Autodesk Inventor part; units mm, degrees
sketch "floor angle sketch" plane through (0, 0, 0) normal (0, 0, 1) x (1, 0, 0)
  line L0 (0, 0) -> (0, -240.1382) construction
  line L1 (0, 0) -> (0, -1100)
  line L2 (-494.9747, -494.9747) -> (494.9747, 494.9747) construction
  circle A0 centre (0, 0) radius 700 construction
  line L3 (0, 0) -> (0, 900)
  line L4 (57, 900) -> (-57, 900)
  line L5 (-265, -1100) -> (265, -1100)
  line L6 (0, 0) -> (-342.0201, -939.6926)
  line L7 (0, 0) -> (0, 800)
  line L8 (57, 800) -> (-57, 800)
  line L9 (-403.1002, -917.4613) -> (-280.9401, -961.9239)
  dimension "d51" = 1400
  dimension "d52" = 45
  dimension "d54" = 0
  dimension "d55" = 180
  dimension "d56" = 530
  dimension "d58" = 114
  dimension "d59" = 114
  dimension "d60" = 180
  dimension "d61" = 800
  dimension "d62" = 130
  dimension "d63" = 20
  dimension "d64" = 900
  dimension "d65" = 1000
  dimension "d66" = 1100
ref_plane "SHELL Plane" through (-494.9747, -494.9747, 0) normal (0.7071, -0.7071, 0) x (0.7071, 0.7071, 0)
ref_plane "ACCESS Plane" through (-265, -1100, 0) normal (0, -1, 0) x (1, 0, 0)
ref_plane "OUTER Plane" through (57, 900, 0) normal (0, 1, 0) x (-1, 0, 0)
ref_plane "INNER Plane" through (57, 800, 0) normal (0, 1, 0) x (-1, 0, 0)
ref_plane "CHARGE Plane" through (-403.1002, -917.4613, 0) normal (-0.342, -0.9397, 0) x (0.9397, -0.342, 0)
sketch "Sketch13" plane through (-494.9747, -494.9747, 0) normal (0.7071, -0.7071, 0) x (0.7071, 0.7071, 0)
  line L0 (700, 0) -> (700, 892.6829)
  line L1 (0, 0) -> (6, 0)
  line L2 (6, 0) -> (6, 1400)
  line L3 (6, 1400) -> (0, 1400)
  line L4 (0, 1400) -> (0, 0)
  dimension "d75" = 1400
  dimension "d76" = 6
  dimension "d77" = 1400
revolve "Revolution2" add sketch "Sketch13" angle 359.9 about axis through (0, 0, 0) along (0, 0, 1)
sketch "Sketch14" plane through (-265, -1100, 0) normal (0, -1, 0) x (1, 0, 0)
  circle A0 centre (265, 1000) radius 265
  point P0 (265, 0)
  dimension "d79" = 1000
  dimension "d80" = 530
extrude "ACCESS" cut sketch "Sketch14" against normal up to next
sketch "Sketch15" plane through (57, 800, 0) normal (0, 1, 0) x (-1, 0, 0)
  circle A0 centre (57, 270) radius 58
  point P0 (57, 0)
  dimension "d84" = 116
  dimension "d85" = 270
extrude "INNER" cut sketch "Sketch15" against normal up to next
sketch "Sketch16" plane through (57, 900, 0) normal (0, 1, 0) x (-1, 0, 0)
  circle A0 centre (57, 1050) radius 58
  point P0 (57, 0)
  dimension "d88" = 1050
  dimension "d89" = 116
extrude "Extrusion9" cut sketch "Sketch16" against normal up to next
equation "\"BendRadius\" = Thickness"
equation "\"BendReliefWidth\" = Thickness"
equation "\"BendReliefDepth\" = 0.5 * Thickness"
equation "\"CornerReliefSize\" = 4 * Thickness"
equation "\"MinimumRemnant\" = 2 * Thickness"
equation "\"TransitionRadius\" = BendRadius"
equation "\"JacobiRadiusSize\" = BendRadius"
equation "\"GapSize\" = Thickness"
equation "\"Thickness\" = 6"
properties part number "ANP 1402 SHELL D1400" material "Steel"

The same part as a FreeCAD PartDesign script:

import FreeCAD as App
import Part
import Sketcher
from FreeCAD import Vector
Q = App.Units.Quantity


def add_polygon(sketch, points):
    """Adds a closed chain of lines whose ends are joined by coincident constraints."""
    first, n = sketch.GeometryCount, len(points)
    for a, b in zip(points, points[1:] + points[:1]):
        sketch.addGeometry(Part.LineSegment(App.Vector(*a, 0), App.Vector(*b, 0)), False)
    for i in range(n):
        sketch.addConstraint(Sketcher.Constraint("Coincident", first + i, 2, first + (i + 1) % n, 1))

doc = App.newDocument("Part")
body = doc.addObject("PartDesign::Body", "Body")

sketch1 = body.newObject("Sketcher::SketchObject", "Sketch")
sketch1.Placement = App.Placement(Vector(-494.9747, -494.9747, 0), App.Rotation(Vector(0.707106781, 0.707106781, 0), Vector(0, 0, 0.999999999), Vector(0.707106781, -0.707106781, 0), "ZXY"))
add_polygon(sketch1, [(0, 1400), (0, 0), (6, 0), (6, 1400)])
sketch1.addGeometry(Part.LineSegment(Vector(700, 0, 0), Vector(700, 1400, 0)), True)
sketch1.addConstraint(Sketcher.Constraint("Vertical", 0))
sketch1.addConstraint(Sketcher.Constraint("Horizontal", 1))
sketch1.addConstraint(Sketcher.Constraint("Vertical", 2))
sketch1.addConstraint(Sketcher.Constraint("Horizontal", 3))
sketch1.addConstraint(Sketcher.Constraint("Vertical", 4))
sketch1.addConstraint(Sketcher.Constraint("Coincident", 0, 2, -1, 1))
sketch1.addConstraint(Sketcher.Constraint("PointOnObject", 4, 1, -1))
sketch1.addConstraint(Sketcher.Constraint("Horizontal", 3, 2, 4, 2))
sketch1.addConstraint(Sketcher.Constraint("DistanceX", 1, 1, 1, 2, Q("6 mm")))
sketch1.addConstraint(Sketcher.Constraint("DistanceY", 0, 2, 0, 1, Q("1400 mm")))
sketch1.addConstraint(Sketcher.Constraint("DistanceX", -1, 1, 4, 1, Q("700 mm")))
revolution = body.newObject("PartDesign::Revolution", "Revolution")
revolution.Profile = sketch1
revolution.ReferenceAxis = (sketch1, ["Axis0"])
revolution.Angle = 359.9

sketch2 = body.newObject("Sketcher::SketchObject", "Sketch001")
sketch2.AttachmentSupport = (doc.getObject("XZ_Plane"), [""])
sketch2.MapMode = "FlatFace"
sketch2.AttachmentOffset = App.Placement(Vector(0, 0, 1100), App.Rotation())
sketch2.addGeometry(Part.Circle(Vector(0, 1000, 0), Vector(0, 0, 1), 265), False)
sketch2.addConstraint(Sketcher.Constraint("PointOnObject", 0, 3, -2))
sketch2.addConstraint(Sketcher.Constraint("Diameter", 0, Q("530 mm")))
sketch2.addConstraint(Sketcher.Constraint("DistanceY", -1, 1, 0, 3, Q("1000 mm")))
pocket1 = body.newObject("PartDesign::Pocket", "Pocket")
pocket1.Profile = sketch2
pocket1.Length = 458.5868

sketch3 = body.newObject("Sketcher::SketchObject", "Sketch002")
sketch3.AttachmentSupport = (doc.getObject("XZ_Plane"), [""])
sketch3.MapMode = "FlatFace"
sketch3.AttachmentOffset = App.Placement(Vector(0, 0, -800), App.Rotation())
sketch3.addGeometry(Part.Circle(Vector(0, 270, 0), Vector(0, 0, 1), 58), False)
sketch3.addConstraint(Sketcher.Constraint("PointOnObject", 0, 3, -2))
sketch3.addConstraint(Sketcher.Constraint("Diameter", 0, Q("116 mm")))
sketch3.addConstraint(Sketcher.Constraint("DistanceY", -1, 1, 0, 3, Q("270 mm")))
pocket2 = body.newObject("PartDesign::Pocket", "Pocket001")
pocket2.Profile = sketch3
pocket2.Length = 108.4279
pocket2.Reversed = True

sketch4 = body.newObject("Sketcher::SketchObject", "Sketch003")
sketch4.AttachmentSupport = (doc.getObject("XZ_Plane"), [""])
sketch4.MapMode = "FlatFace"
sketch4.AttachmentOffset = App.Placement(Vector(0, 0, -900), App.Rotation())
sketch4.addGeometry(Part.Circle(Vector(0, 1050, 0), Vector(0, 0, 1), 58), False)
sketch4.addConstraint(Sketcher.Constraint("PointOnObject", 0, 3, -2))
sketch4.addConstraint(Sketcher.Constraint("Diameter", 0, Q("116 mm")))
sketch4.addConstraint(Sketcher.Constraint("DistanceY", -1, 1, 0, 3, Q("1050 mm")))
pocket3 = body.newObject("PartDesign::Pocket", "Pocket002")
pocket3.Profile = sketch4
pocket3.Length = 208.4279
pocket3.Reversed = True

doc.recompute()
